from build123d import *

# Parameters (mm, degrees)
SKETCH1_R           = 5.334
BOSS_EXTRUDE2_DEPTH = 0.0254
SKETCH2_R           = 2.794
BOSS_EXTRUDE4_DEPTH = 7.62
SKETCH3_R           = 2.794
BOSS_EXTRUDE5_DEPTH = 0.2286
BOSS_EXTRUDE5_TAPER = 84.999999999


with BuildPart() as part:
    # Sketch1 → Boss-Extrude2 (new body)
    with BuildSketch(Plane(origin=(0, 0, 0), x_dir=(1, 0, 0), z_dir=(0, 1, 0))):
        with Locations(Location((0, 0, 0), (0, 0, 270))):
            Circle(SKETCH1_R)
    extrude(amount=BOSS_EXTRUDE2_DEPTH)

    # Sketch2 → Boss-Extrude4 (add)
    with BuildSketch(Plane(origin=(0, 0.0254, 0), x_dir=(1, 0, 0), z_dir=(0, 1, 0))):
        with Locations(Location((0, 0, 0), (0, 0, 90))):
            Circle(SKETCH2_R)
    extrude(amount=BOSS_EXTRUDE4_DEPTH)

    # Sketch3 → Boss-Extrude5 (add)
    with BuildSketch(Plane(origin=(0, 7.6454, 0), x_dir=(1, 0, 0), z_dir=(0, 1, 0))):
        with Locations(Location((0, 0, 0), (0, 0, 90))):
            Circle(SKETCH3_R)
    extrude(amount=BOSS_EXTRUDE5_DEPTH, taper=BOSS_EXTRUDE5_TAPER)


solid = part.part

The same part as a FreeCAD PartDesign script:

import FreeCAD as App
import Part
import Sketcher
Q = App.Units.Quantity

doc = App.newDocument("Part")
params = doc.addObject("Spreadsheet::Sheet", "Params")
for row, (alias, value) in enumerate([
    ("sketch1_diameter", "0.42 in"),
    ("pad1_length", "0.001 in"),
    ("sketch2_diameter", "0.22 in"),
    ("pad2_length", "0.3 in"),
    ("sketch3_diameter", "0.22 in"),
    ("pad3_length", "0.009 in"),
    ("pad3_taper", "-85 deg"),
], start=1):
    params.set(f"A{row}", alias)
    params.set(f"B{row}", "=" + value)
    params.setAlias(f"B{row}", alias)

body = doc.addObject("PartDesign::Body", "Body")

# Sketch on XZ plane
sketch1 = body.newObject("Sketcher::SketchObject", "Sketch")
sketch1.AttachmentSupport = (doc.getObject("XZ_Plane"), [""])
sketch1.MapMode = "FlatFace"
sketch1.addGeometry(Part.Circle(App.Vector(0, 0, 0), App.Vector(0, 0, 1), 5.334), False)
sketch1.addConstraint(Sketcher.Constraint("Coincident", 0, 3, -1, 1))
sketch1.addConstraint(Sketcher.Constraint("Diameter", 0, Q("0.42 in")))
sketch1.setExpression("Constraints[1]", "Params.sketch1_diameter")
pad1 = body.newObject("PartDesign::Pad", "Pad")
pad1.Profile = sketch1
pad1.setExpression("Length", "Params.pad1_length")
pad1.Reversed = True

# Sketch on XZ plane
sketch2 = body.newObject("Sketcher::SketchObject", "Sketch001")
sketch2.AttachmentSupport = (doc.getObject("XZ_Plane"), [""])
sketch2.MapMode = "FlatFace"
sketch2.AttachmentOffset = App.Placement(App.Vector(0, 0, -0.001 * 25.4), App.Rotation())
sketch2.addGeometry(Part.Circle(App.Vector(0, 0, 0), App.Vector(0, 0, 1), 2.794), False)
sketch2.addConstraint(Sketcher.Constraint("Coincident", 0, 3, -1, 1))
sketch2.addConstraint(Sketcher.Constraint("Diameter", 0, Q("0.22 in")))
sketch2.setExpression("Constraints[1]", "Params.sketch2_diameter")
pad2 = body.newObject("PartDesign::Pad", "Pad001")
pad2.Profile = sketch2
pad2.setExpression("Length", "Params.pad2_length")
pad2.Reversed = True

# Sketch on XZ plane
sketch3 = body.newObject("Sketcher::SketchObject", "Sketch002")
sketch3.AttachmentSupport = (doc.getObject("XZ_Plane"), [""])
sketch3.MapMode = "FlatFace"
sketch3.AttachmentOffset = App.Placement(App.Vector(0, 0, -0.301 * 25.4), App.Rotation())
sketch3.addGeometry(Part.Circle(App.Vector(0, 0, 0), App.Vector(0, 0, 1), 2.794), False)
sketch3.addConstraint(Sketcher.Constraint("Coincident", 0, 3, -1, 1))
sketch3.addConstraint(Sketcher.Constraint("Diameter", 0, Q("0.22 in")))
sketch3.setExpression("Constraints[1]", "Params.sketch3_diameter")
pad3 = body.newObject("PartDesign::Pad", "Pad002")
pad3.Profile = sketch3
pad3.setExpression("Length", "Params.pad3_length")
pad3.Reversed = True
pad3.setExpression("TaperAngle", "Params.pad3_taper")

doc.recompute()
